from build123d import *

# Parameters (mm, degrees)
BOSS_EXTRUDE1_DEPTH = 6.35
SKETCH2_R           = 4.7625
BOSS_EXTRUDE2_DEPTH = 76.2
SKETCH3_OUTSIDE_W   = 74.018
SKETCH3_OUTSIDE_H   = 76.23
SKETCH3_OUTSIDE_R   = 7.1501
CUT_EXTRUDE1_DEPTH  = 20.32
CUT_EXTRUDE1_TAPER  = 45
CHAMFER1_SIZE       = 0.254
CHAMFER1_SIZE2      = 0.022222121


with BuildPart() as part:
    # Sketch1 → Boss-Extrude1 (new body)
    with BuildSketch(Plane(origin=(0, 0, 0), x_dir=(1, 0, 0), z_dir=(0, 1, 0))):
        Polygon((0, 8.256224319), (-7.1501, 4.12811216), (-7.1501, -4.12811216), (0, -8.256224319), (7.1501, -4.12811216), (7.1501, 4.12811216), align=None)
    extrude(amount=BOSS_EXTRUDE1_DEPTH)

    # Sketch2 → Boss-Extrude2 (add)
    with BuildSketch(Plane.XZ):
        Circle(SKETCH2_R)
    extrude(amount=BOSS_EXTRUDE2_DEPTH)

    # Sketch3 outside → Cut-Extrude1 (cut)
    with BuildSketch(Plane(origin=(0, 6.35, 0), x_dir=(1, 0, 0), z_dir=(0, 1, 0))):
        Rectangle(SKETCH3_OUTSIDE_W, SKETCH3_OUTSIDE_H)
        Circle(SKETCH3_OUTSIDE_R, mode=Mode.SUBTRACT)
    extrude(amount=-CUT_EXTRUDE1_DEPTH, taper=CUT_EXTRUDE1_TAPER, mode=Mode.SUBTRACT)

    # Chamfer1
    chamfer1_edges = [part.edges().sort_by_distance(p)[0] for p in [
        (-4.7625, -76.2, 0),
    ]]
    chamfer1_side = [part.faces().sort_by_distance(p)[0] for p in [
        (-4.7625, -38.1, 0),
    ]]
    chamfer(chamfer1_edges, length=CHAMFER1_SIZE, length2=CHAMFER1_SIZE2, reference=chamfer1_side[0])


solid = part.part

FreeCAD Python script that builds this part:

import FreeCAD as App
import Part
import Sketcher
Q = App.Units.Quantity


def edges_at(feature, points):
    """Names of the edges that pass closest to the given points."""
    edges = feature.Shape.Edges
    near = lambda p: min(range(len(edges)), key=lambda i: edges[i].distToShape(Part.Vertex(*p))[0])
    return sorted({f"Edge{near(p) + 1}" for p in points})


def add_polygon(sketch, points):
    """Adds a closed chain of lines whose ends are joined by coincident constraints."""
    first, n = sketch.GeometryCount, len(points)
    for a, b in zip(points, points[1:] + points[:1]):
        sketch.addGeometry(Part.LineSegment(App.Vector(*a, 0), App.Vector(*b, 0)), False)
    for i in range(n):
        sketch.addConstraint(Sketcher.Constraint("Coincident", first + i, 2, first + (i + 1) % n, 1))

doc = App.newDocument("Part")
params = doc.addObject("Spreadsheet::Sheet", "Params")
for row, (alias, value) in enumerate([
    ("pad1_length", "0.25 in"),
    ("sketch2_diameter", "0.375 in"),
    ("pad2_length", "3 in"),
    ("sketch3_diameter", "0.563 in"),
    ("pocket1_length", "0.8 in"),
    ("pocket1_taper", "45 deg"),
    ("chamfer_size", "0.01 in"),
    ("chamfer_size2", "0.022222 mm"),
], start=1):
    params.set(f"A{row}", alias)
    params.set(f"B{row}", "=" + value)
    params.setAlias(f"B{row}", alias)

body = doc.addObject("PartDesign::Body", "Body")

# Sketch on XZ plane
sketch1 = doc.addObject("Sketcher::SketchObject", "Sketch")
body.addObject(sketch1)
sketch1.AttachmentSupport = (doc.XZ_Plane, [""])
sketch1.MapMode = "FlatFace"
add_polygon(sketch1, [(0, -8), (-7, -4), (-7, 4), (0, 8), (7, 4), (7, -4)])  # lines 0-5
sketch1.addConstraint([
    Sketcher.Constraint("Vertical", 1),
    Sketcher.Constraint("Vertical", 4),
    Sketcher.Constraint("Symmetric", 0, 2, 3, 2, -1, 1),
    Sketcher.Constraint("Symmetric", 2, 2, 5, 2, -1, 1),
    Sketcher.Constraint("PointOnObject", 2, 2, -2),
    Sketcher.Constraint("Parallel", 2, 5),
    Sketcher.Constraint("Horizontal", 1, 2, 3, 2),
    Sketcher.Constraint("Angle", 0, Q("150 deg")),
    Sketcher.Constraint("DistanceX", 1, 2, 3, 2, Q("0.563 in")),
    Sketcher.Constraint("DistanceY", 1, 1, 1, 2, 8.256224),
])
pad1 = doc.addObject("PartDesign::Pad", "Pad")
body.addObject(pad1)
pad1.Profile = sketch1
pad1.setExpression("Length", "Params.pad1_length")
pad1.Reversed = True

# Sketch on XZ plane
sketch2 = doc.addObject("Sketcher::SketchObject", "Sketch001")
body.addObject(sketch2)
sketch2.AttachmentSupport = (doc.XZ_Plane, [""])
sketch2.MapMode = "FlatFace"
sketch2.addGeometry(Part.Circle(App.Vector(0, 0, 0), App.Vector(0, 0, 1), 4.8), False)
sketch2.addConstraint([
    Sketcher.Constraint("Coincident", 0, 3, -1, 1),
    Sketcher.Constraint("Diameter", 0, Q("0.375 in")),
])
sketch2.setExpression("Constraints[1]", "Params.sketch2_diameter")
pad2 = doc.addObject("PartDesign::Pad", "Pad001")
body.addObject(pad2)
pad2.Profile = sketch2
pad2.setExpression("Length", "Params.pad2_length")

# Sketch on XZ plane
sketch3 = doc.addObject("Sketcher::SketchObject", "Sketch002")
body.addObject(sketch3)
sketch3.AttachmentSupport = (doc.XZ_Plane, [""])
sketch3.MapMode = "FlatFace"
sketch3.AttachmentOffset = App.Placement(App.Vector(0, 0, -0.25 * 25.4), App.Rotation())
add_polygon(sketch3, [(-37, -38), (-37, 38), (37, 38), (37, -38)])  # lines 0-3
sketch3.addGeometry(Part.Circle(App.Vector(0, 0, 0), App.Vector(0, 0, 1), 7), False)  # 4
sketch3.addConstraint([
    Sketcher.Constraint("Vertical", 0),
    Sketcher.Constraint("Horizontal", 1),
    Sketcher.Constraint("Vertical", 2),
    Sketcher.Constraint("Horizontal", 3),
    Sketcher.Constraint("Coincident", 4, 3, -1, 1),
    Sketcher.Constraint("Symmetric", 0, 2, 2, 2, -1, 1),
    Sketcher.Constraint("Diameter", 4, Q("0.563 in")),
    Sketcher.Constraint("DistanceX", 1, 1, 1, 2, 74.018),
    Sketcher.Constraint("DistanceY", 0, 1, 0, 2, 76.23),
])
sketch3.setExpression("Constraints[10]", "Params.sketch3_diameter")
pocket1 = doc.addObject("PartDesign::Pocket", "Pocket")
body.addObject(pocket1)
pocket1.Profile = sketch3
pocket1.setExpression("Length", "Params.pocket1_length")
pocket1.Reversed = True
pocket1.setExpression("TaperAngle", "Params.pocket1_taper")
doc.recompute()

chamfer = doc.addObject("PartDesign::Chamfer", "Chamfer")
body.addObject(chamfer)
chamfer.Base = (pocket1, edges_at(pocket1, [(-4.763, -76.2, 0)]))
chamfer.ChamferType = "Two distances"
chamfer.setExpression("Size", "Params.chamfer_size")
chamfer.setExpression("Size2", "Params.chamfer_size2")

doc.recompute()
